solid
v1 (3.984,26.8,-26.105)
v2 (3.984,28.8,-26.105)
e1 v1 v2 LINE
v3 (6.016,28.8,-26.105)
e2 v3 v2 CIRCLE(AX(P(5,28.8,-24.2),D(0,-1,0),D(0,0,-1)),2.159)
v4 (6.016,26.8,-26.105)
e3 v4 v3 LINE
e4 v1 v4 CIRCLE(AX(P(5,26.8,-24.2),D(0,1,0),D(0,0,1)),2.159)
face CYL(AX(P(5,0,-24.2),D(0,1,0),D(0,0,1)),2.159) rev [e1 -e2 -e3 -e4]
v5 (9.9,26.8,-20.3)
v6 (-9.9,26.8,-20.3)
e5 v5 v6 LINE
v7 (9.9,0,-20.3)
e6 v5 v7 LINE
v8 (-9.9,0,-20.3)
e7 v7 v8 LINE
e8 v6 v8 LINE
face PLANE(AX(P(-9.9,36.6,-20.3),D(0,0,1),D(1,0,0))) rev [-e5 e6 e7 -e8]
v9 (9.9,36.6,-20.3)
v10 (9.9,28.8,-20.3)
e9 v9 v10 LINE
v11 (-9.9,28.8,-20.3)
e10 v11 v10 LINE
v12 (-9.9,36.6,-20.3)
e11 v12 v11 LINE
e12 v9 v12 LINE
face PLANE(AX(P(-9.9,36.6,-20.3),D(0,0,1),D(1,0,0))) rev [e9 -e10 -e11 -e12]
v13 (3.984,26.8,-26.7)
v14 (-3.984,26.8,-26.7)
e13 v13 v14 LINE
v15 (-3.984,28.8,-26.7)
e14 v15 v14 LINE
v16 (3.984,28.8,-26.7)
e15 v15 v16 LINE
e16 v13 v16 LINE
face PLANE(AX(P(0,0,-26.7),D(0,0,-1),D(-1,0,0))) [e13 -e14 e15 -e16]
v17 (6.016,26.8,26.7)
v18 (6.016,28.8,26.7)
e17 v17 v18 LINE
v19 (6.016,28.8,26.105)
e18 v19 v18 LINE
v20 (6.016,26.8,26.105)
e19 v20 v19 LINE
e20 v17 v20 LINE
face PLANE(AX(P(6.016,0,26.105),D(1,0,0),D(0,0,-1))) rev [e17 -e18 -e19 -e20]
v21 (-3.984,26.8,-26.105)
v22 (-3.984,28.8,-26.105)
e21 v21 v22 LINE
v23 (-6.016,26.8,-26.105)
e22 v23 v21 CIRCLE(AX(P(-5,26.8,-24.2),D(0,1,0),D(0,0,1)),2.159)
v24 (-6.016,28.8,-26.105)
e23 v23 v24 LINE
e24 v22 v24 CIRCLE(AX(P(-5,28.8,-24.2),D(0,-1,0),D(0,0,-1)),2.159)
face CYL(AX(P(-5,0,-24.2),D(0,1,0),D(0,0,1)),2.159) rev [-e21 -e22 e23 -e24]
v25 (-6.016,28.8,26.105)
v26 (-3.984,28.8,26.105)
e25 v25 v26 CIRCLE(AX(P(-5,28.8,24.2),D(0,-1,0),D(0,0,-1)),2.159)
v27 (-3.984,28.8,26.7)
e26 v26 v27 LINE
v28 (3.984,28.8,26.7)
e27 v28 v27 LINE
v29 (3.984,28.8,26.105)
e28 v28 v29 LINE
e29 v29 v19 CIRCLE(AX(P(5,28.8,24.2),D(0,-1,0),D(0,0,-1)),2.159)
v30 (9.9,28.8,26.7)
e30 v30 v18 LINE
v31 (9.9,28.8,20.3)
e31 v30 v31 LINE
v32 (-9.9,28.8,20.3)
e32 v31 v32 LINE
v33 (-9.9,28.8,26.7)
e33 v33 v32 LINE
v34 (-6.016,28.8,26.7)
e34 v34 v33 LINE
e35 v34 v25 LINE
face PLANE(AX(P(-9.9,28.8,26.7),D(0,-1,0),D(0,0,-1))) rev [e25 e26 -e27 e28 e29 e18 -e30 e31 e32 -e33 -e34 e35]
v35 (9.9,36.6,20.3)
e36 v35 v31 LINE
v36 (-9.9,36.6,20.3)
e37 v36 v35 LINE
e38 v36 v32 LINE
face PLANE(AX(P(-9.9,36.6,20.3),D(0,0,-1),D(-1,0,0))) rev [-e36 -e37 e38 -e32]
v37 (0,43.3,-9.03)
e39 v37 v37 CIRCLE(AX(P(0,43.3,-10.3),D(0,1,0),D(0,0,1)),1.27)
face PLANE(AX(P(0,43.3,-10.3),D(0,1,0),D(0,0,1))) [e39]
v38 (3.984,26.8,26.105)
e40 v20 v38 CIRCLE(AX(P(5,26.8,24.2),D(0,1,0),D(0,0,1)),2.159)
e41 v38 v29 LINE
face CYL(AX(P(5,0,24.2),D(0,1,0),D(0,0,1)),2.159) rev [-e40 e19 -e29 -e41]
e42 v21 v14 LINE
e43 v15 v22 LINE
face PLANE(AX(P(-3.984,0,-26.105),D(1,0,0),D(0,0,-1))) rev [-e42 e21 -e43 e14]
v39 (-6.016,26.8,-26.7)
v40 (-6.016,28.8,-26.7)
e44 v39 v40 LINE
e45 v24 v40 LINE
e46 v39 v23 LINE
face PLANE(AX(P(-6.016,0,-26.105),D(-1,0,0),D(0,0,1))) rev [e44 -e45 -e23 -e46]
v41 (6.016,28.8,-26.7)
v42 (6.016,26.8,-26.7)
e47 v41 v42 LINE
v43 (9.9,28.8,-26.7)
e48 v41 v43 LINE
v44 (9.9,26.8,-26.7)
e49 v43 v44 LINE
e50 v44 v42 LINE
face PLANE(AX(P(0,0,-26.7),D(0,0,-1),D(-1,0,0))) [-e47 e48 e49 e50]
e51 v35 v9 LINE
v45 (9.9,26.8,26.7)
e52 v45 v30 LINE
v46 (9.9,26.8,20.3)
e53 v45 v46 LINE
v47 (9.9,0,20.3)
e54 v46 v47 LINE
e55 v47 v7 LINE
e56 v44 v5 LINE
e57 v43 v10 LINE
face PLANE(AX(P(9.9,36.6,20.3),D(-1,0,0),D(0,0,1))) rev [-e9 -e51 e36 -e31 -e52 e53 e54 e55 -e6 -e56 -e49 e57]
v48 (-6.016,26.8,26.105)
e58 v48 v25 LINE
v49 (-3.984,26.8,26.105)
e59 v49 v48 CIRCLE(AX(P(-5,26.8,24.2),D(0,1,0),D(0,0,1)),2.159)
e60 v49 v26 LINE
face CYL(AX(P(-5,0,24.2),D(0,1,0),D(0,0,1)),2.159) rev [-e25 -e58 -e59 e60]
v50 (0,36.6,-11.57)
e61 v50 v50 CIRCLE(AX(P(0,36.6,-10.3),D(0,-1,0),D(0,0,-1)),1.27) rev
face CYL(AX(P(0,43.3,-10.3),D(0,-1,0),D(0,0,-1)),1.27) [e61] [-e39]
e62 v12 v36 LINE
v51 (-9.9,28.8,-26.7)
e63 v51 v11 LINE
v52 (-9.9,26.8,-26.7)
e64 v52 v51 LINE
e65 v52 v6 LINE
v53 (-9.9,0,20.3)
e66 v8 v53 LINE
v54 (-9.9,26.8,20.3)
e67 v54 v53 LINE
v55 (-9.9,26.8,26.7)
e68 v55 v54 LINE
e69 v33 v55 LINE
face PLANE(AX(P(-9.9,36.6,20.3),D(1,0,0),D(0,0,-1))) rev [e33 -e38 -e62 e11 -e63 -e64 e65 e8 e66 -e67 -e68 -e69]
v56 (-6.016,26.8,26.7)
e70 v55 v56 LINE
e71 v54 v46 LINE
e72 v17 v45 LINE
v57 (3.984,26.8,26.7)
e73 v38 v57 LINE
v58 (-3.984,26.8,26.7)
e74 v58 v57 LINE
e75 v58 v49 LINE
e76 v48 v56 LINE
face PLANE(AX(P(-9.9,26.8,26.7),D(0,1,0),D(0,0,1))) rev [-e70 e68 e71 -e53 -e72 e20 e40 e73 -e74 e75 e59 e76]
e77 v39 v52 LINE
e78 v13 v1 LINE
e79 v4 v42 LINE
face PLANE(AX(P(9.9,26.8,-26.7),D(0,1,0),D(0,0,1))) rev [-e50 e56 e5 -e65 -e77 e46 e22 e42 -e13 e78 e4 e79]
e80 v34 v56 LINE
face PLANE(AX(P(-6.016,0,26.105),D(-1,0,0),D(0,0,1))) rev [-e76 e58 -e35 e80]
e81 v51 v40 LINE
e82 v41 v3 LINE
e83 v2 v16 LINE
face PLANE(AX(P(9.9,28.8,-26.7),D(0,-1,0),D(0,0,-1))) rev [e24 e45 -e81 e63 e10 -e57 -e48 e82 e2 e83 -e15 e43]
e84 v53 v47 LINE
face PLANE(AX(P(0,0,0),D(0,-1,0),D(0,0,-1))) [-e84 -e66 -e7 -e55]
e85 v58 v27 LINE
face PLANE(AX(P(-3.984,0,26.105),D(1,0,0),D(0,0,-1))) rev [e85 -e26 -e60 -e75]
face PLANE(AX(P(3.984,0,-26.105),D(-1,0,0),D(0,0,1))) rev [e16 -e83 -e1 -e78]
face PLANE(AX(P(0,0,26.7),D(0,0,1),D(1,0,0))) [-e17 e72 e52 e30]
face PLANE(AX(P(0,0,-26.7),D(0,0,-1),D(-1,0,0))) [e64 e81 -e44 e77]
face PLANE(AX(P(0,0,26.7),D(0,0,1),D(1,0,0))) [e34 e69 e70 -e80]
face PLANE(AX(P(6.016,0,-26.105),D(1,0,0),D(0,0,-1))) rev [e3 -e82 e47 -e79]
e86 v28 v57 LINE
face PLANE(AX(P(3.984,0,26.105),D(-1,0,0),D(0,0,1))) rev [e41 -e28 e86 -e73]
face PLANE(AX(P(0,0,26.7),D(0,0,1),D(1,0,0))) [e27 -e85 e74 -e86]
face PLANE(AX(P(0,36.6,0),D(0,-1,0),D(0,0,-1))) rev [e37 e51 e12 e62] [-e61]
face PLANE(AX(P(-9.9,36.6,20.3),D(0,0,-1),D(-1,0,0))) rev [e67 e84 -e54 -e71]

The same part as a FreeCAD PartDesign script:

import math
import FreeCAD as App
import Part
import Sketcher

V = App.Vector

doc = App.newDocument("Part")
body = doc.addObject("PartDesign::Body", "Body")

sketch1 = body.newObject("Sketcher::SketchObject", "Sketch")
sketch1.AttachmentSupport = (doc.getObject("XZ_Plane"), [""])
sketch1.MapMode = "FlatFace"
sketch1.addGeometry([
    Part.LineSegment(V(-9.9, -20.3, 0), V(-9.9, 20.3, 0)),
    Part.LineSegment(V(-9.9, 20.3, 0), V(9.9, 20.3, 0)),
    Part.LineSegment(V(9.9, 20.3, 0), V(9.9, -20.3, 0)),
    Part.LineSegment(V(9.9, -20.3, 0), V(-9.9, -20.3, 0)),
], False)
sketch1.addConstraint([
    Sketcher.Constraint("Coincident", 0, 2, 1, 1),
    Sketcher.Constraint("Coincident", 1, 2, 2, 1),
    Sketcher.Constraint("Coincident", 2, 2, 3, 1),
    Sketcher.Constraint("Coincident", 3, 2, 0, 1),
    Sketcher.Constraint("Vertical", 0),
    Sketcher.Constraint("Horizontal", 1),
    Sketcher.Constraint("Vertical", 2),
    Sketcher.Constraint("Horizontal", 3),
    Sketcher.Constraint("Symmetric", 0, 2, 2, 2, -1, 1),
    Sketcher.Constraint("DistanceX", 1, 1, 1, 2, 19.8),
    Sketcher.Constraint("DistanceY", 0, 1, 0, 2, 40.6),
])
pad1 = body.newObject("PartDesign::Pad", "Pad")
pad1.Profile = sketch1
pad1.Length = 36.6
pad1.Reversed = True

sketch2 = body.newObject("Sketcher::SketchObject", "Sketch001")
sketch2.AttachmentSupport = (doc.getObject("XZ_Plane"), [""])
sketch2.MapMode = "FlatFace"
sketch2.AttachmentOffset = App.Placement(V(0, 0, -36.6), App.Rotation())
sketch2.addGeometry(Part.Circle(V(0, -10.3, 0), V(0, 0, 1), 1.27), False)
sketch2.addConstraint([
    Sketcher.Constraint("PointOnObject", 0, 3, -2),
    Sketcher.Constraint("Diameter", 0, 2.54),
    Sketcher.Constraint("DistanceY", 0, 3, -1, 1, 10.3),
])
pad2 = body.newObject("PartDesign::Pad", "Pad001")
pad2.Profile = sketch2
pad2.Length = 6.7
pad2.Reversed = True

sketch3 = body.newObject("Sketcher::SketchObject", "Sketch002")
sketch3.AttachmentSupport = (doc.getObject("XY_Plane"), [""])
sketch3.MapMode = "FlatFace"
sketch3.AttachmentOffset = App.Placement(V(0, 0, -20.3), App.Rotation())
sketch3.addGeometry([
    Part.LineSegment(V(9.9, 28.8, 0), V(9.9, 26.8, 0)),
    Part.LineSegment(V(9.9, 26.8, 0), V(-9.9, 26.8, 0)),
    Part.LineSegment(V(-9.9, 26.8, 0), V(-9.9, 28.8, 0)),
    Part.LineSegment(V(-9.9, 28.8, 0), V(9.9, 28.8, 0)),
], False)
sketch3.addConstraint([
    Sketcher.Constraint("Coincident", 0, 2, 1, 1),
    Sketcher.Constraint("Coincident", 1, 2, 2, 1),
    Sketcher.Constraint("Coincident", 2, 2, 3, 1),
    Sketcher.Constraint("Coincident", 3, 2, 0, 1),
    Sketcher.Constraint("Vertical", 0),
    Sketcher.Constraint("Horizontal", 1),
    Sketcher.Constraint("Vertical", 2),
    Sketcher.Constraint("Horizontal", 3),
    Sketcher.Constraint("DistanceY", 0, 2, 0, 1, 2.0),
    Sketcher.Constraint("DistanceX", 1, 2, 1, 1, 19.8),
    Sketcher.Constraint("DistanceX", -1, 1, 0, 2, 9.9),
    Sketcher.Constraint("DistanceY", -1, 1, 0, 2, 26.8),
])
pad3 = body.newObject("PartDesign::Pad", "Pad002")
pad3.Profile = sketch3
pad3.Length = 6.4
pad3.Reversed = True

sketch4 = body.newObject("Sketcher::SketchObject", "Sketch003")
sketch4.AttachmentSupport = (doc.getObject("XY_Plane"), [""])
sketch4.MapMode = "FlatFace"
sketch4.AttachmentOffset = App.Placement(V(0, 0, 20.3), App.Rotation())
sketch4.addGeometry([
    Part.LineSegment(V(-9.9, 28.8, 0), V(-9.9, 26.8, 0)),
    Part.LineSegment(V(-9.9, 26.8, 0), V(9.9, 26.8, 0)),
    Part.LineSegment(V(9.9, 26.8, 0), V(9.9, 28.8, 0)),
    Part.LineSegment(V(9.9, 28.8, 0), V(-9.9, 28.8, 0)),
], False)
sketch4.addConstraint([
    Sketcher.Constraint("Coincident", 0, 2, 1, 1),
    Sketcher.Constraint("Coincident", 1, 2, 2, 1),
    Sketcher.Constraint("Coincident", 2, 2, 3, 1),
    Sketcher.Constraint("Coincident", 3, 2, 0, 1),
    Sketcher.Constraint("Vertical", 0),
    Sketcher.Constraint("Horizontal", 1),
    Sketcher.Constraint("Vertical", 2),
    Sketcher.Constraint("Horizontal", 3),
    Sketcher.Constraint("DistanceY", 0, 2, 0, 1, 2.0),
    Sketcher.Constraint("DistanceX", 1, 1, 1, 2, 19.8),
    Sketcher.Constraint("DistanceX", 0, 2, -1, 1, 9.9),
    Sketcher.Constraint("DistanceY", -1, 1, 0, 2, 26.8),
])
pad4 = body.newObject("PartDesign::Pad", "Pad003")
pad4.Profile = sketch4
pad4.Length = 6.4

sketch5 = body.newObject("Sketcher::SketchObject", "Sketch004")
sketch5.AttachmentSupport = (doc.getObject("XZ_Plane"), [""])
sketch5.MapMode = "FlatFace"
sketch5.AttachmentOffset = App.Placement(V(0, 0, -36.6), App.Rotation())
sketch5.addGeometry([
    Part.LineSegment(V(-6.016, -26.7, 0), V(-6.016, -26.105, 0)),
    Part.ArcOfCircle(Part.Circle(V(-5, -24.2, 0), V(0, 0, 1), 2.159), math.radians(-61.927513), math.radians(241.927513)),
    Part.LineSegment(V(-3.984, -26.105, 0), V(-3.984, -26.7, 0)),
    Part.LineSegment(V(-3.984, -26.7, 0), V(-6.016, -26.7, 0)),
    Part.LineSegment(V(3.984, -26.7, 0), V(3.984, -26.105, 0)),
    Part.ArcOfCircle(Part.Circle(V(5, -24.2, 0), V(0, 0, 1), 2.159), math.radians(-61.927513), math.radians(241.927513)),
    Part.LineSegment(V(6.016, -26.105, 0), V(6.016, -26.7, 0)),
    Part.LineSegment(V(6.016, -26.7, 0), V(3.984, -26.7, 0)),
    Part.LineSegment(V(-6.016, 26.105, 0), V(-6.016, 26.7, 0)),
    Part.LineSegment(V(-6.016, 26.7, 0), V(-3.984, 26.7, 0)),
    Part.LineSegment(V(-3.984, 26.7, 0), V(-3.984, 26.105, 0)),
    Part.ArcOfCircle(Part.Circle(V(-5, 24.2, 0), V(0, 0, 1), 2.159), math.radians(118.072487), math.radians(421.927513)),
    Part.LineSegment(V(3.984, 26.105, 0), V(3.984, 26.7, 0)),
    Part.LineSegment(V(3.984, 26.7, 0), V(6.016, 26.7, 0)),
    Part.LineSegment(V(6.016, 26.7, 0), V(6.016, 26.105, 0)),
    Part.ArcOfCircle(Part.Circle(V(5, 24.2, 0), V(0, 0, 1), 2.159), math.radians(118.072487), math.radians(421.927513)),
], False)
sketch5.addConstraint([
    Sketcher.Constraint("Coincident", 0, 2, 1, 2),
    Sketcher.Constraint("Coincident", 1, 1, 2, 1),
    Sketcher.Constraint("Coincident", 2, 2, 3, 1),
    Sketcher.Constraint("Coincident", 3, 2, 0, 1),
    Sketcher.Constraint("Coincident", 4, 2, 5, 2),
    Sketcher.Constraint("Coincident", 5, 1, 6, 1),
    Sketcher.Constraint("Coincident", 6, 2, 7, 1),
    Sketcher.Constraint("Coincident", 7, 2, 4, 1),
    Sketcher.Constraint("Coincident", 8, 2, 9, 1),
    Sketcher.Constraint("Coincident", 9, 2, 10, 1),
    Sketcher.Constraint("Coincident", 10, 2, 11, 2),
    Sketcher.Constraint("Coincident", 11, 1, 8, 1),
    Sketcher.Constraint("Coincident", 12, 2, 13, 1),
    Sketcher.Constraint("Coincident", 13, 2, 14, 1),
    Sketcher.Constraint("Coincident", 14, 2, 15, 2),
    Sketcher.Constraint("Coincident", 15, 1, 12, 1),
    Sketcher.Constraint("Vertical", 0),
    Sketcher.Constraint("Vertical", 2),
    Sketcher.Constraint("Horizontal", 3),
    Sketcher.Constraint("Vertical", 4),
    Sketcher.Constraint("Vertical", 6),
    Sketcher.Constraint("Horizontal", 7),
    Sketcher.Constraint("Vertical", 8),
    Sketcher.Constraint("Horizontal", 9),
    Sketcher.Constraint("Vertical", 10),
    Sketcher.Constraint("Vertical", 12),
    Sketcher.Constraint("Horizontal", 13),
    Sketcher.Constraint("Vertical", 14),
    Sketcher.Constraint("Equal", 1, 5),
    Sketcher.Constraint("Equal", 5, 11),
    Sketcher.Constraint("Equal", 11, 15),
    Sketcher.Constraint("Symmetric", 5, 3, 11, 3, -1, 1),
    Sketcher.Constraint("Symmetric", 1, 3, 15, 3, -1, 1),
    Sketcher.Constraint("Symmetric", 6, 2, 8, 2, -1, 1),
    Sketcher.Constraint("Symmetric", 2, 2, 12, 2, -1, 1),
    Sketcher.Constraint("Symmetric", 1, 3, 5, 3, -2),
    Sketcher.Constraint("Symmetric", 3, 2, 6, 2, -2),
    Sketcher.Constraint("Horizontal", 0, 2, 1, 1),
    Sketcher.Constraint("Horizontal", 1, 1, 4, 2),
    Sketcher.Constraint("Horizontal", 10, 2, 11, 1),
    Sketcher.Constraint("Horizontal", 11, 1, 14, 2),
    Sketcher.Constraint("DistanceX", 1, 3, -1, 1, 5.0),
    Sketcher.Constraint("Radius", 1, 2.159),
    Sketcher.Constraint("DistanceY", 1, 3, -1, 1, 24.2),
    Sketcher.Constraint("DistanceY", 2, 2, -1, 1, 26.7),
    Sketcher.Constraint("DistanceX", 3, 2, 3, 1, 2.032),
])
pocket1 = body.newObject("PartDesign::Pocket", "Pocket")
pocket1.Profile = sketch5
pocket1.Type = "ThroughAll"
pocket1.Reversed = True

doc.recompute()
